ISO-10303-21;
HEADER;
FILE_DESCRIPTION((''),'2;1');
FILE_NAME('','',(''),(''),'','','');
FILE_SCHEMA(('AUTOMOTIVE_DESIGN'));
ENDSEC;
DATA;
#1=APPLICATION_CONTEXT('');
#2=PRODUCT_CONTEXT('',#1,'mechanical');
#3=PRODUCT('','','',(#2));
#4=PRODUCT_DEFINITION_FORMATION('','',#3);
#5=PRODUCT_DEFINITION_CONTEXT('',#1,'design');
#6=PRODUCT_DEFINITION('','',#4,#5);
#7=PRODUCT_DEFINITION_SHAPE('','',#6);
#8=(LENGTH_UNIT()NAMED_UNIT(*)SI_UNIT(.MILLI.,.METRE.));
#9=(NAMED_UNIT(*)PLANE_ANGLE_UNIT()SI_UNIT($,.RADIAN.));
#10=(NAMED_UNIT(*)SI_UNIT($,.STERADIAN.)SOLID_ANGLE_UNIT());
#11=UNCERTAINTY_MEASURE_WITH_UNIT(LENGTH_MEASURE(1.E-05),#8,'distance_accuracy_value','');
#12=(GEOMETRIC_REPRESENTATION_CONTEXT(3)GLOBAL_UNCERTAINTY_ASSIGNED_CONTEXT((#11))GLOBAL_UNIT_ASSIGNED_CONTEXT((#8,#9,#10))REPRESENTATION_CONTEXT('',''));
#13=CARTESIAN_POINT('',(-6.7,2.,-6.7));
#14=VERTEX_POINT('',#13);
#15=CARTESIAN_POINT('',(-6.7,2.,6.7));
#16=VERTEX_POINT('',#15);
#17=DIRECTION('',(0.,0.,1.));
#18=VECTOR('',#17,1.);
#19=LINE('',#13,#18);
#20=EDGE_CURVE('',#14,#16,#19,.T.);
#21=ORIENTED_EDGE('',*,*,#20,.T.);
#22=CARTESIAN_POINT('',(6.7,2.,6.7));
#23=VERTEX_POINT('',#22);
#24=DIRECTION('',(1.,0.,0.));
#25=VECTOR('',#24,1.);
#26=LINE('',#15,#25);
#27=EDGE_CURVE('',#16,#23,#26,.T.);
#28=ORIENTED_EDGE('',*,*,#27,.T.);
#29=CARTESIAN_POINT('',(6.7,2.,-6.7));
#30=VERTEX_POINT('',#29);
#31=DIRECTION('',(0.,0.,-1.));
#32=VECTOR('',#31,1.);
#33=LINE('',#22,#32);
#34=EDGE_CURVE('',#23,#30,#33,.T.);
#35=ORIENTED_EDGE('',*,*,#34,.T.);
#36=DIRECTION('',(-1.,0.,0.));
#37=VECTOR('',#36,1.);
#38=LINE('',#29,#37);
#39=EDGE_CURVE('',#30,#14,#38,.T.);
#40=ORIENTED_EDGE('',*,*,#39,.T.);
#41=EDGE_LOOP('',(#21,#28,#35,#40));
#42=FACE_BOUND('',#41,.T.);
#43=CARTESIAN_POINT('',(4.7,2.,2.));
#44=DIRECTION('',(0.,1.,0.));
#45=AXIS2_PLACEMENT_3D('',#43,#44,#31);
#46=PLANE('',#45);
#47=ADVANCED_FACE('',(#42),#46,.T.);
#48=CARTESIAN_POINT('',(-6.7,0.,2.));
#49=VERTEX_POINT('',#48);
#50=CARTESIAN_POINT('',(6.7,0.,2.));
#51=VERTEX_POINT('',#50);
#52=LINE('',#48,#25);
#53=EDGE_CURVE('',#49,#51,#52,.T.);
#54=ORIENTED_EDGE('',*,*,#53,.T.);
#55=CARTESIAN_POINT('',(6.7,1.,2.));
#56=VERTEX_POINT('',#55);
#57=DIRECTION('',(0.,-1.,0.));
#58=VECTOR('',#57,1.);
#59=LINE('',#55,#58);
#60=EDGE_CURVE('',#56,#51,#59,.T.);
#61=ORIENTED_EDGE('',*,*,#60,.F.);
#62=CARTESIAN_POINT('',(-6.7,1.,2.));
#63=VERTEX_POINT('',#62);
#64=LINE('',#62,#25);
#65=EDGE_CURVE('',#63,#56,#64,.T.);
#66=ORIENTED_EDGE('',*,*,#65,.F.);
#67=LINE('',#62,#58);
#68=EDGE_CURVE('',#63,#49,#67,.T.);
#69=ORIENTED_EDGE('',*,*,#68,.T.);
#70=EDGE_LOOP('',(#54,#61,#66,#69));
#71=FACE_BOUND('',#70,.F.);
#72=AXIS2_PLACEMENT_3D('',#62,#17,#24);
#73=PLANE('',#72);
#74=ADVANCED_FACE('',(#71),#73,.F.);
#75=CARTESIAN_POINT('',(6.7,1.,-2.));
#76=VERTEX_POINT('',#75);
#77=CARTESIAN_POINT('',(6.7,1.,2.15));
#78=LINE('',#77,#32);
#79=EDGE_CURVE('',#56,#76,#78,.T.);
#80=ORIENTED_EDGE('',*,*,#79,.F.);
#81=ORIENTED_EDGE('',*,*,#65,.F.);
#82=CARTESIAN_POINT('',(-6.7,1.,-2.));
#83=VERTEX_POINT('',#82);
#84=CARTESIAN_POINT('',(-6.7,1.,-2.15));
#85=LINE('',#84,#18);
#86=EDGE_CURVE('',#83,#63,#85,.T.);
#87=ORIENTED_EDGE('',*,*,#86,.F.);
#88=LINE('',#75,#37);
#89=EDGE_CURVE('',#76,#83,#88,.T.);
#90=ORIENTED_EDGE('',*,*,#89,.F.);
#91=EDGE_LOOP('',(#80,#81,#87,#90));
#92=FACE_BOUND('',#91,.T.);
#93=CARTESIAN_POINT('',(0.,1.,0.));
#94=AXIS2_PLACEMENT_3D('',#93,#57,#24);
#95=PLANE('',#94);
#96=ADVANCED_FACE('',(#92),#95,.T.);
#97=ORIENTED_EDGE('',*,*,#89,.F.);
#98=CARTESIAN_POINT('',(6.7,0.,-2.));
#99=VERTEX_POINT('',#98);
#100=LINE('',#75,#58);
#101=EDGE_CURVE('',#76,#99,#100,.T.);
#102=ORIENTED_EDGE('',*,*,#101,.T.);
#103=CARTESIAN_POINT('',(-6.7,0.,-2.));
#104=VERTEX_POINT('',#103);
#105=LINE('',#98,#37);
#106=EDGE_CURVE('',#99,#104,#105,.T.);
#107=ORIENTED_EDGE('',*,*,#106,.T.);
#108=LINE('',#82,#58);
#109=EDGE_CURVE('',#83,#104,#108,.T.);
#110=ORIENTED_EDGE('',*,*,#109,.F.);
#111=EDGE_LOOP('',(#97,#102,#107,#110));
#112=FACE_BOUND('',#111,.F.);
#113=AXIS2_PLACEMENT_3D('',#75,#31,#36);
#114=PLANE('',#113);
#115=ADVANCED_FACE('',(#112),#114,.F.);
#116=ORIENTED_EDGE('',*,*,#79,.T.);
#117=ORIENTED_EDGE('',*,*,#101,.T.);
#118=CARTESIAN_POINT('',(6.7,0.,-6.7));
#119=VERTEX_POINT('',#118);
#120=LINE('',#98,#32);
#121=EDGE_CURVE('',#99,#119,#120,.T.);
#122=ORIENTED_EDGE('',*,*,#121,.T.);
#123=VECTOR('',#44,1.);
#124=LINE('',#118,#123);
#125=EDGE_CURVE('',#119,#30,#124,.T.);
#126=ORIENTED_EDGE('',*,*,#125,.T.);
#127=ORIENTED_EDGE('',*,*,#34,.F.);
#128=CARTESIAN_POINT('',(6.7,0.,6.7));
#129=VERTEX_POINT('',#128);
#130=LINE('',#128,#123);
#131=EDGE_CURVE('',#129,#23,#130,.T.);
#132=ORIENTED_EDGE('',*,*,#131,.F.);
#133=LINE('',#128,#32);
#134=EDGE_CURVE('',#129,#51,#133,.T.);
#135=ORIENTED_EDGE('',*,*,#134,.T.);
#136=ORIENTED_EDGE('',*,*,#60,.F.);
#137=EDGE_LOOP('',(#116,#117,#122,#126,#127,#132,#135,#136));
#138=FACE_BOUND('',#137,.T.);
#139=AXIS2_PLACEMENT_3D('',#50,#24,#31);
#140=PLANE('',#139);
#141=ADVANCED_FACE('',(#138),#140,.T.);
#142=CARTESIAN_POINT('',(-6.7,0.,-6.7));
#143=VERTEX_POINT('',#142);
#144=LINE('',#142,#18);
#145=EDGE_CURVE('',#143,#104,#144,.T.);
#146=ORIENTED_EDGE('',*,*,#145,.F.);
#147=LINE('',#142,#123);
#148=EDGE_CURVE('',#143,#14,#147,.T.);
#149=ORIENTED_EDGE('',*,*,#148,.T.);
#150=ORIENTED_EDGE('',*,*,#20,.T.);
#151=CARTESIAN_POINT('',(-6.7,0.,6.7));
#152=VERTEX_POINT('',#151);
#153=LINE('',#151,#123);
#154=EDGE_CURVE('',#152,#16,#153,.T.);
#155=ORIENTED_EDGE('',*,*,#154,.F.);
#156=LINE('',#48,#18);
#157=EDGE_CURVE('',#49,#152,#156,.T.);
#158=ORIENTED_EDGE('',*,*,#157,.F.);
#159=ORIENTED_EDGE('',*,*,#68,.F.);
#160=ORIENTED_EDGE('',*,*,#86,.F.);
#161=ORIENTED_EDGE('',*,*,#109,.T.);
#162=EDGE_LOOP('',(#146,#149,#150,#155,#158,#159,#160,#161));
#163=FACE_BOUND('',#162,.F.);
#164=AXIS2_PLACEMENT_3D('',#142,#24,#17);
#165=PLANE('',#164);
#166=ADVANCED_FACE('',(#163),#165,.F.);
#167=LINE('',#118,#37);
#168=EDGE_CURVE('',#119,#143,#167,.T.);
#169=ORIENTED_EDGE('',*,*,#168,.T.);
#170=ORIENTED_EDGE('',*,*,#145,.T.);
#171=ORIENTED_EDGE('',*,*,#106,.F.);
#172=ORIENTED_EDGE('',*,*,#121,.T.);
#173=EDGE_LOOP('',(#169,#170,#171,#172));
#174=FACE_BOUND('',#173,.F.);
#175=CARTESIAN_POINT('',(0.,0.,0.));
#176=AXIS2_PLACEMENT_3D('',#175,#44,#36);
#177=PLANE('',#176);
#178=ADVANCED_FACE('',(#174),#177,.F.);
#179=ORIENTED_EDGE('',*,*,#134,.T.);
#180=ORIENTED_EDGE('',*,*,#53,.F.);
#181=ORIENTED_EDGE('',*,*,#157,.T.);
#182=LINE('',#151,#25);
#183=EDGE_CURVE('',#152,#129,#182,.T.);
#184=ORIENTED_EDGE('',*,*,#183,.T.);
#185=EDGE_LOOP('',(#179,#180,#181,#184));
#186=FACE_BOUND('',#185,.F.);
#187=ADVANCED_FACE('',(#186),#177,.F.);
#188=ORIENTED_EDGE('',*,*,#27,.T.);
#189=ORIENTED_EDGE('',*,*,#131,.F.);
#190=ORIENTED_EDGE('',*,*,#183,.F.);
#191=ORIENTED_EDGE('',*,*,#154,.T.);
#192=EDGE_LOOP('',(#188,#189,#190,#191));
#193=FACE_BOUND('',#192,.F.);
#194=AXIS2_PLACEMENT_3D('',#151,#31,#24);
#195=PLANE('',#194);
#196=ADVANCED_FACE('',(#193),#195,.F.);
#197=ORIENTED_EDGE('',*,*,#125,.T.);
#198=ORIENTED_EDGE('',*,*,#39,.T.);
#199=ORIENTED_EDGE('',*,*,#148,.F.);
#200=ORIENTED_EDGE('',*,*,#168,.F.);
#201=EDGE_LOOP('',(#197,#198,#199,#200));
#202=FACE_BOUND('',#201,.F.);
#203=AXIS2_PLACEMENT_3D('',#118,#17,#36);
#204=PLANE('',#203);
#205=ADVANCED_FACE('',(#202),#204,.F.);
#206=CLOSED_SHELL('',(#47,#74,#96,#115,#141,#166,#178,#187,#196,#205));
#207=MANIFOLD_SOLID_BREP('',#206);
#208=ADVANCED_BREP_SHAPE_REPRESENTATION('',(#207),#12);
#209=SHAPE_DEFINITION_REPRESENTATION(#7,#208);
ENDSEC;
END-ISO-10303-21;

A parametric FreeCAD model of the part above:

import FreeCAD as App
import Part
import Sketcher

V = App.Vector


def add_polygon(sketch, points):
    """Adds a closed chain of lines whose ends are joined by coincident constraints."""
    first, n = sketch.GeometryCount, len(points)
    for a, b in zip(points, points[1:] + points[:1]):
        sketch.addGeometry(Part.LineSegment(App.Vector(*a, 0), App.Vector(*b, 0)), False)
    for i in range(n):
        sketch.addConstraint(Sketcher.Constraint("Coincident", first + i, 2, first + (i + 1) % n, 1))

doc = App.newDocument("Part")
body = doc.addObject("PartDesign::Body", "Body")

# Sketch on XZ plane
sketch1 = body.newObject("Sketcher::SketchObject", "Sketch")
sketch1.AttachmentSupport = (doc.getObject("XZ_Plane"), [""])
sketch1.MapMode = "FlatFace"
add_polygon(sketch1, [(-7, -7), (-7, 7), (7, 7), (7, -7)])  # lines 0-3
sketch1.addConstraint([
    Sketcher.Constraint("Vertical", 0),
    Sketcher.Constraint("Horizontal", 1),
    Sketcher.Constraint("Vertical", 2),
    Sketcher.Constraint("Horizontal", 3),
    Sketcher.Constraint("Symmetric", 0, 2, 2, 2, -1, 1),
    Sketcher.Constraint("Equal", 3, 0),
    Sketcher.Constraint("DistanceX", 1, 1, 1, 2, 13.4),
])
pad1 = body.newObject("PartDesign::Pad", "Pad")
pad1.Profile = sketch1
pad1.Length = 2
pad1.Reversed = True

# Sketch on XZ plane
sketch2 = body.newObject("Sketcher::SketchObject", "Sketch001")
sketch2.AttachmentSupport = (doc.getObject("XZ_Plane"), [""])
sketch2.MapMode = "FlatFace"
add_polygon(sketch2, [(6.7, -2), (6.7, 2), (4.7, 2), (4.7, -2)])  # lines 0-3
sketch2.addConstraint([
    Sketcher.Constraint("Vertical", 0),
    Sketcher.Constraint("Horizontal", 1),
    Sketcher.Constraint("Vertical", 2),
    Sketcher.Constraint("Horizontal", 3),
    Sketcher.Constraint("DistanceX", 1, 2, 1, 1, 2.0),
    Sketcher.Constraint("DistanceY", 0, 1, 0, 2, 4.0),
    Sketcher.Constraint("DistanceY", -1, 1, 0, 2, 2.0),
    Sketcher.Constraint("DistanceX", -1, 1, 0, 2, 6.7),
])
pocket1 = body.newObject("PartDesign::Pocket", "Pocket")
pocket1.Profile = sketch2
pocket1.Length = 2

# Sketch on XZ plane
sketch3 = body.newObject("Sketcher::SketchObject", "Sketch002")
sketch3.AttachmentSupport = (doc.getObject("XZ_Plane"), [""])
sketch3.MapMode = "FlatFace"
add_polygon(sketch3, [(-6.7, 2), (-6.7, -2), (-4.7, -2), (-4.7, 2)])  # lines 0-3
sketch3.addConstraint([
    Sketcher.Constraint("Vertical", 0),
    Sketcher.Constraint("Horizontal", 1),
    Sketcher.Constraint("Vertical", 2),
    Sketcher.Constraint("Horizontal", 3),
    Sketcher.Constraint("DistanceX", 1, 1, 1, 2, 2.0),
    Sketcher.Constraint("DistanceY", 0, 2, 0, 1, 4.0),
    Sketcher.Constraint("DistanceY", 0, 2, -1, 1, 2.0),
    Sketcher.Constraint("DistanceX", 0, 2, -1, 1, 6.7),
])
pocket2 = body.newObject("PartDesign::Pocket", "Pocket001")
pocket2.Profile = sketch3
pocket2.Length = 1

# Sketch on YZ plane
sketch4 = body.newObject("Sketcher::SketchObject", "Sketch003")
sketch4.AttachmentSupport = (doc.getObject("YZ_Plane"), [""])
sketch4.MapMode = "FlatFace"
sketch4.AttachmentOffset = App.Placement(V(0, 0, 4.7), App.Rotation())
add_polygon(sketch4, [(2, -2), (2, 2), (1, 2), (1, -2)])  # lines 0-3
sketch4.addConstraint([
    Sketcher.Constraint("Vertical", 0),
    Sketcher.Constraint("Horizontal", 1),
    Sketcher.Constraint("Vertical", 2),
    Sketcher.Constraint("Horizontal", 3),
    Sketcher.Constraint("DistanceX", 1, 2, 1, 1, 1.0),
    Sketcher.Constraint("DistanceY", 0, 1, 0, 2, 4.0),
    Sketcher.Constraint("DistanceX", -1, 1, 0, 2, 2.0),
    Sketcher.Constraint("DistanceY", -1, 1, 0, 2, 2.0),
])
pad2 = body.newObject("PartDesign::Pad", "Pad001")
pad2.Profile = sketch4
pad2.Length = 2

# Sketch on XZ plane
sketch5 = body.newObject("Sketcher::SketchObject", "Sketch004")
sketch5.AttachmentSupport = (doc.getObject("XZ_Plane"), [""])
sketch5.MapMode = "FlatFace"
add_polygon(sketch5, [(6.7, -2.1), (6.7, 2.1), (-6.7, 2.1), (-6.7, -2.1)])  # lines 0-3
sketch5.addConstraint([
    Sketcher.Constraint("Vertical", 0),
    Sketcher.Constraint("Horizontal", 1),
    Sketcher.Constraint("Vertical", 2),
    Sketcher.Constraint("Horizontal", 3),
    Sketcher.Constraint("Symmetric", 0, 2, 2, 2, -1, 1),
    Sketcher.Constraint("DistanceY", 0, 1, 0, 2, 4.3),
    Sketcher.Constraint("DistanceX", 1, 2, 1, 1, 13.4),
])
pocket3 = body.newObject("PartDesign::Pocket", "Pocket002")
pocket3.Profile = sketch5
pocket3.Length = 1

# Sketch on XZ plane
sketch6 = body.newObject("Sketcher::SketchObject", "Sketch005")
sketch6.AttachmentSupport = (doc.getObject("XZ_Plane"), [""])
sketch6.MapMode = "FlatFace"
sketch6.AttachmentOffset = App.Placement(V(0, 0, -1), App.Rotation())
add_polygon(sketch6, [(6.7, 2), (6.7, 2.15), (-6.7, 2.15), (-6.7, 2)])  # lines 0-3
add_polygon(sketch6, [(6.7, -2.15), (6.7, -2), (-6.7, -2), (-6.7, -2.15)])  # lines 4-7
sketch6.addConstraint([
    Sketcher.Constraint("Vertical", 0),
    Sketcher.Constraint("Horizontal", 1),
    Sketcher.Constraint("Vertical", 2),
    Sketcher.Constraint("Horizontal", 3),
    Sketcher.Constraint("Vertical", 4),
    Sketcher.Constraint("Horizontal", 5),
    Sketcher.Constraint("Vertical", 6),
    Sketcher.Constraint("Horizontal", 7),
    Sketcher.Constraint("Symmetric", 2, 2, 4, 2, -1, 1),
    Sketcher.Constraint("Symmetric", 0, 2, 6, 2, -1, 1),
    Sketcher.Constraint("Vertical", 3, 2, 4, 2),
    Sketcher.Constraint("DistanceX", 1, 2, 1, 1, 13.4),
    Sketcher.Constraint("DistanceY", 0, 1, 0, 2, 0.15),
    Sketcher.Constraint("DistanceY", -1, 1, 2, 2, 2.0),
])
pad3 = body.newObject("PartDesign::Pad", "Pad002")
pad3.Profile = sketch6
pad3.Length = 1

doc.recompute()
